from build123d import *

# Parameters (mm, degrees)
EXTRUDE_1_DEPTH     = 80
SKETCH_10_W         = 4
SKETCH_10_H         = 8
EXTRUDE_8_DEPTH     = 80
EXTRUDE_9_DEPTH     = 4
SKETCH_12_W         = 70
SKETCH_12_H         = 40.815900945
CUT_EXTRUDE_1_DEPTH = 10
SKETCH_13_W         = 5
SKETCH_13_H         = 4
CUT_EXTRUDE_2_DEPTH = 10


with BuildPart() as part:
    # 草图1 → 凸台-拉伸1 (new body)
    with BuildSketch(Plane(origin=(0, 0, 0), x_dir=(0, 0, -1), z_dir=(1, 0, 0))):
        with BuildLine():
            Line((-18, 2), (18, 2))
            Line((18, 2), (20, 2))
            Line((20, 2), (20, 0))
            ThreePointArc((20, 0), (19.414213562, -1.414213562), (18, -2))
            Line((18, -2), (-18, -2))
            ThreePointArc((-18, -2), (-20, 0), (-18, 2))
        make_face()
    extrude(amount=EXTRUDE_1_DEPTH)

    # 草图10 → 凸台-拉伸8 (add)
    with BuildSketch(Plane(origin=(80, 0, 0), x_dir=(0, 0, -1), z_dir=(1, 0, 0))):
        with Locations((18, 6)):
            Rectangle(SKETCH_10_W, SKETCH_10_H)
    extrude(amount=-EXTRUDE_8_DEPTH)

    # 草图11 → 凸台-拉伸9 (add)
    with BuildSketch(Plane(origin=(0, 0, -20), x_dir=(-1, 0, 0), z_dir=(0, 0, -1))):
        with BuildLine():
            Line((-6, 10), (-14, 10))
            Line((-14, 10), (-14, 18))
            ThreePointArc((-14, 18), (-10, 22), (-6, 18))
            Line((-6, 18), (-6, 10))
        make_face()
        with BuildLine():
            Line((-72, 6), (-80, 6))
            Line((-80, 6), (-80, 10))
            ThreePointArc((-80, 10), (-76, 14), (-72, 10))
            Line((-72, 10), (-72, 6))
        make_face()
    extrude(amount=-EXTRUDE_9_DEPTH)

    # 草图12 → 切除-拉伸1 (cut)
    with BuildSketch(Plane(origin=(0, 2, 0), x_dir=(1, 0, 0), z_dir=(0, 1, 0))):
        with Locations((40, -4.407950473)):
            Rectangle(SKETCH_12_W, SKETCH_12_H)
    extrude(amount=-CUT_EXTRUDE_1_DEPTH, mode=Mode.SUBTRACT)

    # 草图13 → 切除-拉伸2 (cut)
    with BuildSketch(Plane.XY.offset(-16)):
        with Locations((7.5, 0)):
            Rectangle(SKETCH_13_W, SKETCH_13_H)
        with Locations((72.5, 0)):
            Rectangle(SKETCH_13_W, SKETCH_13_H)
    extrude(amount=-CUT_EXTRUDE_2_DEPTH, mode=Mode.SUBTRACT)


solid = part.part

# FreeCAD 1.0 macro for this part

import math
import FreeCAD as App
import Part
import Sketcher

V = App.Vector
Q = App.Units.Quantity


def add_polygon(sketch, points):
    """Adds a closed chain of lines whose ends are joined by coincident constraints."""
    first, n = sketch.GeometryCount, len(points)
    for a, b in zip(points, points[1:] + points[:1]):
        sketch.addGeometry(Part.LineSegment(App.Vector(*a, 0), App.Vector(*b, 0)), False)
    for i in range(n):
        sketch.addConstraint(Sketcher.Constraint("Coincident", first + i, 2, first + (i + 1) % n, 1))

doc = App.newDocument("Part")
body = doc.addObject("PartDesign::Body", "Body")

sketch1 = doc.addObject("Sketcher::SketchObject", "Sketch")
body.addObject(sketch1)
sketch1.AttachmentSupport = (doc.YZ_Plane, [""])
sketch1.MapMode = "FlatFace"
sketch1.addGeometry([
    Part.LineSegment(V(2, -20, 0), V(2, 18, 0)),
    Part.ArcOfCircle(Part.Circle(V(0, 18, 0), V(0, 0, 1), 2), math.radians(0), math.radians(180)),
    Part.LineSegment(V(-2, 18, 0), V(-2, -18, 0)),
    Part.ArcOfCircle(Part.Circle(V(0, -18, 0), V(0, 0, 1), 2), math.radians(-180), math.radians(-90)),
    Part.LineSegment(V(0, -20, 0), V(2, -20, 0)),
], False)
sketch1.addConstraint([
    Sketcher.Constraint("Tangent", 0, 2, 1, 1),
    Sketcher.Constraint("Tangent", 1, 2, 2, 1),
    Sketcher.Constraint("Tangent", 2, 2, 3, 1),
    Sketcher.Constraint("Tangent", 3, 2, 4, 1),
    Sketcher.Constraint("Coincident", 4, 2, 0, 1),
    Sketcher.Constraint("Vertical", 0),
    Sketcher.Constraint("Vertical", 2),
    Sketcher.Constraint("Horizontal", 4),
    Sketcher.Constraint("Equal", 1, 3),
    Sketcher.Constraint("Symmetric", 1, 3, 3, 3, -1, 1),
    Sketcher.Constraint("Radius", 1, Q("2 mm")),
    Sketcher.Constraint("DistanceY", 0, 1, 0, 2, Q("38 mm")),
])
pad1 = doc.addObject("PartDesign::Pad", "Pad")
body.addObject(pad1)
pad1.Profile = sketch1
pad1.Length = 80

sketch2 = doc.addObject("Sketcher::SketchObject", "Sketch001")
body.addObject(sketch2)
sketch2.AttachmentSupport = (doc.YZ_Plane, [""])
sketch2.MapMode = "FlatFace"
sketch2.AttachmentOffset = App.Placement(V(0, 0, 80), App.Rotation())
add_polygon(sketch2, [(10, -16), (2, -16), (2, -20), (10, -20)])
sketch2.addConstraint([
    Sketcher.Constraint("Horizontal", 0),
    Sketcher.Constraint("Vertical", 1),
    Sketcher.Constraint("Horizontal", 2),
    Sketcher.Constraint("Vertical", 3),
    Sketcher.Constraint("DistanceX", 0, 2, 0, 1, Q("8 mm")),
    Sketcher.Constraint("DistanceY", 1, 2, 1, 1, Q("4 mm")),
    Sketcher.Constraint("DistanceX", -1, 1, 0, 2, Q("2 mm")),
    Sketcher.Constraint("DistanceY", 0, 2, -1, 1, Q("16 mm")),
])
pad2 = doc.addObject("PartDesign::Pad", "Pad001")
body.addObject(pad2)
pad2.Profile = sketch2
pad2.Length = 80
pad2.Reversed = True

sketch3 = doc.addObject("Sketcher::SketchObject", "Sketch002")
body.addObject(sketch3)
sketch3.AttachmentSupport = (doc.XY_Plane, [""])
sketch3.MapMode = "FlatFace"
sketch3.AttachmentOffset = App.Placement(V(0, 0, -20), App.Rotation())
sketch3.addGeometry([
    Part.LineSegment(V(14, 10, 0), V(6, 10, 0)),
    Part.LineSegment(V(6, 10, 0), V(6, 18, 0)),
    Part.ArcOfCircle(Part.Circle(V(10, 18, 0), V(0, 0, 1), 4), math.radians(0), math.radians(180)),
    Part.LineSegment(V(14, 18, 0), V(14, 10, 0)),
    Part.LineSegment(V(80, 6, 0), V(72, 6, 0)),
    Part.LineSegment(V(72, 6, 0), V(72, 10, 0)),
    Part.ArcOfCircle(Part.Circle(V(76, 10, 0), V(0, 0, 1), 4), math.radians(0), math.radians(180)),
    Part.LineSegment(V(80, 10, 0), V(80, 6, 0)),
], False)
sketch3.addConstraint([
    Sketcher.Constraint("Coincident", 0, 2, 1, 1),
    Sketcher.Constraint("Tangent", 1, 2, 2, 2),
    Sketcher.Constraint("Tangent", 2, 1, 3, 1),
    Sketcher.Constraint("Coincident", 3, 2, 0, 1),
    Sketcher.Constraint("Coincident", 4, 2, 5, 1),
    Sketcher.Constraint("Tangent", 5, 2, 6, 2),
    Sketcher.Constraint("Tangent", 6, 1, 7, 1),
    Sketcher.Constraint("Coincident", 7, 2, 4, 1),
    Sketcher.Constraint("Horizontal", 0),
    Sketcher.Constraint("Vertical", 1),
    Sketcher.Constraint("Vertical", 3),
    Sketcher.Constraint("Horizontal", 4),
    Sketcher.Constraint("Vertical", 5),
    Sketcher.Constraint("Vertical", 7),
    Sketcher.Constraint("Equal", 2, 6),
    Sketcher.Constraint("Horizontal", 6, 3, 0, 2),
    Sketcher.Constraint("Equal", 4, 1),
    Sketcher.Constraint("Radius", 2, Q("4 mm")),
    Sketcher.Constraint("DistanceY", 5, 1, 5, 2, Q("4 mm")),
    Sketcher.Constraint("DistanceX", -1, 1, 2, 3, Q("10 mm")),
    Sketcher.Constraint("DistanceY", -1, 1, 2, 3, Q("18 mm")),
    Sketcher.Constraint("DistanceX", -1, 1, 6, 3, Q("76 mm")),
])
pad3 = doc.addObject("PartDesign::Pad", "Pad002")
body.addObject(pad3)
pad3.Profile = sketch3
pad3.Length = 4

sketch4 = doc.addObject("Sketcher::SketchObject", "Sketch003")
body.addObject(sketch4)
sketch4.AttachmentSupport = (doc.XZ_Plane, [""])
sketch4.MapMode = "FlatFace"
sketch4.AttachmentOffset = App.Placement(V(0, 0, -2), App.Rotation())
add_polygon(sketch4, [(5, -16), (5, 24.815901), (75, 24.815901), (75, -16)])
sketch4.addConstraint([
    Sketcher.Constraint("Vertical", 0),
    Sketcher.Constraint("Horizontal", 1),
    Sketcher.Constraint("Vertical", 2),
    Sketcher.Constraint("Horizontal", 3),
    Sketcher.Constraint("DistanceX", 1, 1, 1, 2, Q("70 mm")),
    Sketcher.Constraint("DistanceX", -1, 1, 0, 2, Q("5 mm")),
    Sketcher.Constraint("DistanceY", 2, 2, -1, 1, Q("16 mm")),
    Sketcher.Constraint("DistanceY", 0, 1, 0, 2, Q("40.815901 mm")),
])
pocket1 = doc.addObject("PartDesign::Pocket", "Pocket")
body.addObject(pocket1)
pocket1.Profile = sketch4
pocket1.Length = 10
pocket1.Reversed = True

sketch5 = doc.addObject("Sketcher::SketchObject", "Sketch004")
body.addObject(sketch5)
sketch5.AttachmentSupport = (doc.XY_Plane, [""])
sketch5.MapMode = "FlatFace"
sketch5.AttachmentOffset = App.Placement(V(0, 0, -16), App.Rotation())
add_polygon(sketch5, [(5, 2), (5, -2), (10, -2), (10, 2)])
add_polygon(sketch5, [(70, 2), (70, -2), (75, -2), (75, 2)])
sketch5.addConstraint([
    Sketcher.Constraint("Vertical", 0),
    Sketcher.Constraint("Horizontal", 1),
    Sketcher.Constraint("Vertical", 2),
    Sketcher.Constraint("Horizontal", 3),
    Sketcher.Constraint("Vertical", 4),
    Sketcher.Constraint("Horizontal", 5),
    Sketcher.Constraint("Vertical", 6),
    Sketcher.Constraint("Horizontal", 7),
    Sketcher.Constraint("Horizontal", 1, 2, 4, 2),
    Sketcher.Constraint("Horizontal", 3, 2, 6, 2),
    Sketcher.Constraint("Equal", 3, 5),
    Sketcher.Constraint("DistanceX", 1, 1, 1, 2, Q("5 mm")),
    Sketcher.Constraint("DistanceY", 0, 2, 0, 1, Q("4 mm")),
    Sketcher.Constraint("DistanceX", -1, 1, 0, 2, Q("5 mm")),
    Sketcher.Constraint("DistanceY", 0, 2, -1, 1, Q("2 mm")),
    Sketcher.Constraint("DistanceX", -1, 1, 4, 2, Q("70 mm")),
])
pocket2 = doc.addObject("PartDesign::Pocket", "Pocket001")
body.addObject(pocket2)
pocket2.Profile = sketch5
pocket2.Length = 10

doc.recompute()
